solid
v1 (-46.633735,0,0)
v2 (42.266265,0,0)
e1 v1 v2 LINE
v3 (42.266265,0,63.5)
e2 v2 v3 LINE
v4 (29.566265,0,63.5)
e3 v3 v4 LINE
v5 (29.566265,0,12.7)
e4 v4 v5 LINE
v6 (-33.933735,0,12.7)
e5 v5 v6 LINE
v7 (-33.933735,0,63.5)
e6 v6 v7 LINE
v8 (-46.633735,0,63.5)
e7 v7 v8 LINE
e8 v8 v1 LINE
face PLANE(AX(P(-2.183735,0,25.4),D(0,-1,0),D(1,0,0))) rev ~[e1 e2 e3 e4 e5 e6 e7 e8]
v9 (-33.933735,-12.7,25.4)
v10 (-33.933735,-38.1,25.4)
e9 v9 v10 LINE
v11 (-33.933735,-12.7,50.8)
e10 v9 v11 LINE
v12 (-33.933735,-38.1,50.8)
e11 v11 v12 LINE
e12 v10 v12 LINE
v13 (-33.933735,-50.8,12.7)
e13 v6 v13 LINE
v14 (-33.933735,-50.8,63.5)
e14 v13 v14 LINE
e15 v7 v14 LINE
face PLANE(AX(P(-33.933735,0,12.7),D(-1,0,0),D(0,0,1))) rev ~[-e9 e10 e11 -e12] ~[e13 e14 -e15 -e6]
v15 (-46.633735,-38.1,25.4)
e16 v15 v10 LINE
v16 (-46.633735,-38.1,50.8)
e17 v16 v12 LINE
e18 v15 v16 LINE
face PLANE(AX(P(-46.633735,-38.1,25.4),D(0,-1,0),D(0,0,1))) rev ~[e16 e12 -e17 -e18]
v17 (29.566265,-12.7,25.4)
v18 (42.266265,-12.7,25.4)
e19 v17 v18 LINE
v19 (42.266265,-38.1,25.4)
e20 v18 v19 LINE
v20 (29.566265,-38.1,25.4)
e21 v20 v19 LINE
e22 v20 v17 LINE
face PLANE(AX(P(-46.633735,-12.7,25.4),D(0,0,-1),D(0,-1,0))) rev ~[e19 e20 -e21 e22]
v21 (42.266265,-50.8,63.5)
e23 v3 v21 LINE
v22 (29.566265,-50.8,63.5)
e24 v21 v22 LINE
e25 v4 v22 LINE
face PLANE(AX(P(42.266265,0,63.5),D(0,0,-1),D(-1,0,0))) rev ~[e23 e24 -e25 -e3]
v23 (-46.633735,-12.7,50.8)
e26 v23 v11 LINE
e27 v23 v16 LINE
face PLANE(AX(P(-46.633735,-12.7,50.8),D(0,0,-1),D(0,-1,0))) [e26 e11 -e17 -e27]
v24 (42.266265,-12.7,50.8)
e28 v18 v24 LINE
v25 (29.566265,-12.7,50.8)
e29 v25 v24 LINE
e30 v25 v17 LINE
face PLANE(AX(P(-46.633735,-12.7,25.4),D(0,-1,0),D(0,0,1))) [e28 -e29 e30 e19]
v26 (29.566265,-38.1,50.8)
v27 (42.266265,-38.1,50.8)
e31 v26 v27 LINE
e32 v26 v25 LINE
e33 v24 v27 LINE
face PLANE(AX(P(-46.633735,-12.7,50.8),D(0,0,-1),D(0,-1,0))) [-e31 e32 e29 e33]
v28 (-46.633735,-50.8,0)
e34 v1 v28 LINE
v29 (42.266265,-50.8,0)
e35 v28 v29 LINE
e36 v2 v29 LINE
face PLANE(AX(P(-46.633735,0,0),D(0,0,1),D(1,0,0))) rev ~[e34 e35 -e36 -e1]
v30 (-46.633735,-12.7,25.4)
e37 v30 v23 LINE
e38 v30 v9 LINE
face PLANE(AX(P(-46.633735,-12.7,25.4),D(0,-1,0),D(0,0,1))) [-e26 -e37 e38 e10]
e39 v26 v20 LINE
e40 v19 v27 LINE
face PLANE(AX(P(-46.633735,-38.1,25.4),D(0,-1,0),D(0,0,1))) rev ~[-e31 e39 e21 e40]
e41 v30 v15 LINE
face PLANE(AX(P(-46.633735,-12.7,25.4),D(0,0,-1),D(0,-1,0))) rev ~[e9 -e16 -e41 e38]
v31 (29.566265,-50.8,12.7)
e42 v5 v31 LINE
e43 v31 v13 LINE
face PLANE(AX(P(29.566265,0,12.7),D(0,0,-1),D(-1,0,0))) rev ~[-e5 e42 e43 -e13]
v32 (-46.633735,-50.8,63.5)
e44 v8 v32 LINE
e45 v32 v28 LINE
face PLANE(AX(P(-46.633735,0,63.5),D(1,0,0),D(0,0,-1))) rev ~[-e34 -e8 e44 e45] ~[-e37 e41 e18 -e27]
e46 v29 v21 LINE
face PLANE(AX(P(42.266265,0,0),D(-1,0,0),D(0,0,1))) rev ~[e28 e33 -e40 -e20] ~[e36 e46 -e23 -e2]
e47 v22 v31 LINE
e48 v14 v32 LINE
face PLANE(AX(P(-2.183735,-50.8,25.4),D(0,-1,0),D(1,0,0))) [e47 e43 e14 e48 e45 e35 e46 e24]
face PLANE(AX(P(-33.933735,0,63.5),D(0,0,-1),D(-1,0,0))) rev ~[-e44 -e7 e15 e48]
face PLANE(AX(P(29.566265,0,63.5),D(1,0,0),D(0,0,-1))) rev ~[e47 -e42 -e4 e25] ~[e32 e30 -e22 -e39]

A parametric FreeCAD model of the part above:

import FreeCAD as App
import Part
import Sketcher
from FreeCAD import Vector
Q = App.Units.Quantity


def add_polygon(sketch, points):
    """Adds a closed chain of lines whose ends are joined by coincident constraints."""
    first, n = sketch.GeometryCount, len(points)
    for a, b in zip(points, points[1:] + points[:1]):
        sketch.addGeometry(Part.LineSegment(App.Vector(*a, 0), App.Vector(*b, 0)), False)
    for i in range(n):
        sketch.addConstraint(Sketcher.Constraint("Coincident", first + i, 2, first + (i + 1) % n, 1))

doc = App.newDocument("Part")
body = doc.addObject("PartDesign::Body", "Body")

# Sketch on XZ plane
sketch1 = body.newObject("Sketcher::SketchObject", "Sketch")
sketch1.AttachmentSupport = (doc.getObject("XZ_Plane"), [""])
sketch1.MapMode = "FlatFace"
add_polygon(sketch1, [(-34, 64), (-47, 64), (-47, 0), (42, 0), (42, 64), (30, 64), (30, 13), (-34, 13)])  # lines 0-7
sketch1.addConstraint([
    Sketcher.Constraint("Horizontal", 0),
    Sketcher.Constraint("Vertical", 1),
    Sketcher.Constraint("Horizontal", 2),
    Sketcher.Constraint("Vertical", 3),
    Sketcher.Constraint("Horizontal", 4),
    Sketcher.Constraint("Vertical", 5),
    Sketcher.Constraint("Horizontal", 6),
    Sketcher.Constraint("Vertical", 7),
    Sketcher.Constraint("PointOnObject", 1, 2, -1),
    Sketcher.Constraint("Horizontal", 0, 2, 3, 2),
    Sketcher.Constraint("Equal", 0, 4),
    Sketcher.Constraint("Equal", 6, 1),
    Sketcher.Constraint("DistanceY", 5, 2, 5, 1, Q("2 in")),
    Sketcher.Constraint("DistanceX", 0, 2, 0, 1, Q("0.5 in")),
    Sketcher.Constraint("DistanceX", 2, 1, 2, 2, Q("3.5 in")),
    Sketcher.Constraint("DistanceX", 0, 2, -1, 1, Q("46.633735 mm")),
])
pad1 = body.newObject("PartDesign::Pad", "Pad")
pad1.Profile = sketch1
pad1.Length = Q("2 in")

# Sketch on YZ plane
sketch2 = body.newObject("Sketcher::SketchObject", "Sketch001")
sketch2.AttachmentSupport = (doc.getObject("YZ_Plane"), [""])
sketch2.MapMode = "FlatFace"
sketch2.AttachmentOffset = App.Placement(Vector(0, 0, -46.633735), App.Rotation())
add_polygon(sketch2, [(-13, 51), (-13, 25), (-38, 25), (-38, 51)])  # lines 0-3
sketch2.addConstraint([
    Sketcher.Constraint("Vertical", 0),
    Sketcher.Constraint("Horizontal", 1),
    Sketcher.Constraint("Vertical", 2),
    Sketcher.Constraint("Horizontal", 3),
    Sketcher.Constraint("Equal", 3, 0),
    Sketcher.Constraint("DistanceX", 1, 2, 1, 1, Q("1 in")),
    Sketcher.Constraint("DistanceY", -1, 1, 0, 2, Q("1 in")),
    Sketcher.Constraint("DistanceX", 0, 2, -1, 1, Q("0.5 in")),
])
pocket1 = body.newObject("PartDesign::Pocket", "Pocket")
pocket1.Profile = sketch2
pocket1.Type = "ThroughAll"
pocket1.Reversed = True

doc.recompute()
